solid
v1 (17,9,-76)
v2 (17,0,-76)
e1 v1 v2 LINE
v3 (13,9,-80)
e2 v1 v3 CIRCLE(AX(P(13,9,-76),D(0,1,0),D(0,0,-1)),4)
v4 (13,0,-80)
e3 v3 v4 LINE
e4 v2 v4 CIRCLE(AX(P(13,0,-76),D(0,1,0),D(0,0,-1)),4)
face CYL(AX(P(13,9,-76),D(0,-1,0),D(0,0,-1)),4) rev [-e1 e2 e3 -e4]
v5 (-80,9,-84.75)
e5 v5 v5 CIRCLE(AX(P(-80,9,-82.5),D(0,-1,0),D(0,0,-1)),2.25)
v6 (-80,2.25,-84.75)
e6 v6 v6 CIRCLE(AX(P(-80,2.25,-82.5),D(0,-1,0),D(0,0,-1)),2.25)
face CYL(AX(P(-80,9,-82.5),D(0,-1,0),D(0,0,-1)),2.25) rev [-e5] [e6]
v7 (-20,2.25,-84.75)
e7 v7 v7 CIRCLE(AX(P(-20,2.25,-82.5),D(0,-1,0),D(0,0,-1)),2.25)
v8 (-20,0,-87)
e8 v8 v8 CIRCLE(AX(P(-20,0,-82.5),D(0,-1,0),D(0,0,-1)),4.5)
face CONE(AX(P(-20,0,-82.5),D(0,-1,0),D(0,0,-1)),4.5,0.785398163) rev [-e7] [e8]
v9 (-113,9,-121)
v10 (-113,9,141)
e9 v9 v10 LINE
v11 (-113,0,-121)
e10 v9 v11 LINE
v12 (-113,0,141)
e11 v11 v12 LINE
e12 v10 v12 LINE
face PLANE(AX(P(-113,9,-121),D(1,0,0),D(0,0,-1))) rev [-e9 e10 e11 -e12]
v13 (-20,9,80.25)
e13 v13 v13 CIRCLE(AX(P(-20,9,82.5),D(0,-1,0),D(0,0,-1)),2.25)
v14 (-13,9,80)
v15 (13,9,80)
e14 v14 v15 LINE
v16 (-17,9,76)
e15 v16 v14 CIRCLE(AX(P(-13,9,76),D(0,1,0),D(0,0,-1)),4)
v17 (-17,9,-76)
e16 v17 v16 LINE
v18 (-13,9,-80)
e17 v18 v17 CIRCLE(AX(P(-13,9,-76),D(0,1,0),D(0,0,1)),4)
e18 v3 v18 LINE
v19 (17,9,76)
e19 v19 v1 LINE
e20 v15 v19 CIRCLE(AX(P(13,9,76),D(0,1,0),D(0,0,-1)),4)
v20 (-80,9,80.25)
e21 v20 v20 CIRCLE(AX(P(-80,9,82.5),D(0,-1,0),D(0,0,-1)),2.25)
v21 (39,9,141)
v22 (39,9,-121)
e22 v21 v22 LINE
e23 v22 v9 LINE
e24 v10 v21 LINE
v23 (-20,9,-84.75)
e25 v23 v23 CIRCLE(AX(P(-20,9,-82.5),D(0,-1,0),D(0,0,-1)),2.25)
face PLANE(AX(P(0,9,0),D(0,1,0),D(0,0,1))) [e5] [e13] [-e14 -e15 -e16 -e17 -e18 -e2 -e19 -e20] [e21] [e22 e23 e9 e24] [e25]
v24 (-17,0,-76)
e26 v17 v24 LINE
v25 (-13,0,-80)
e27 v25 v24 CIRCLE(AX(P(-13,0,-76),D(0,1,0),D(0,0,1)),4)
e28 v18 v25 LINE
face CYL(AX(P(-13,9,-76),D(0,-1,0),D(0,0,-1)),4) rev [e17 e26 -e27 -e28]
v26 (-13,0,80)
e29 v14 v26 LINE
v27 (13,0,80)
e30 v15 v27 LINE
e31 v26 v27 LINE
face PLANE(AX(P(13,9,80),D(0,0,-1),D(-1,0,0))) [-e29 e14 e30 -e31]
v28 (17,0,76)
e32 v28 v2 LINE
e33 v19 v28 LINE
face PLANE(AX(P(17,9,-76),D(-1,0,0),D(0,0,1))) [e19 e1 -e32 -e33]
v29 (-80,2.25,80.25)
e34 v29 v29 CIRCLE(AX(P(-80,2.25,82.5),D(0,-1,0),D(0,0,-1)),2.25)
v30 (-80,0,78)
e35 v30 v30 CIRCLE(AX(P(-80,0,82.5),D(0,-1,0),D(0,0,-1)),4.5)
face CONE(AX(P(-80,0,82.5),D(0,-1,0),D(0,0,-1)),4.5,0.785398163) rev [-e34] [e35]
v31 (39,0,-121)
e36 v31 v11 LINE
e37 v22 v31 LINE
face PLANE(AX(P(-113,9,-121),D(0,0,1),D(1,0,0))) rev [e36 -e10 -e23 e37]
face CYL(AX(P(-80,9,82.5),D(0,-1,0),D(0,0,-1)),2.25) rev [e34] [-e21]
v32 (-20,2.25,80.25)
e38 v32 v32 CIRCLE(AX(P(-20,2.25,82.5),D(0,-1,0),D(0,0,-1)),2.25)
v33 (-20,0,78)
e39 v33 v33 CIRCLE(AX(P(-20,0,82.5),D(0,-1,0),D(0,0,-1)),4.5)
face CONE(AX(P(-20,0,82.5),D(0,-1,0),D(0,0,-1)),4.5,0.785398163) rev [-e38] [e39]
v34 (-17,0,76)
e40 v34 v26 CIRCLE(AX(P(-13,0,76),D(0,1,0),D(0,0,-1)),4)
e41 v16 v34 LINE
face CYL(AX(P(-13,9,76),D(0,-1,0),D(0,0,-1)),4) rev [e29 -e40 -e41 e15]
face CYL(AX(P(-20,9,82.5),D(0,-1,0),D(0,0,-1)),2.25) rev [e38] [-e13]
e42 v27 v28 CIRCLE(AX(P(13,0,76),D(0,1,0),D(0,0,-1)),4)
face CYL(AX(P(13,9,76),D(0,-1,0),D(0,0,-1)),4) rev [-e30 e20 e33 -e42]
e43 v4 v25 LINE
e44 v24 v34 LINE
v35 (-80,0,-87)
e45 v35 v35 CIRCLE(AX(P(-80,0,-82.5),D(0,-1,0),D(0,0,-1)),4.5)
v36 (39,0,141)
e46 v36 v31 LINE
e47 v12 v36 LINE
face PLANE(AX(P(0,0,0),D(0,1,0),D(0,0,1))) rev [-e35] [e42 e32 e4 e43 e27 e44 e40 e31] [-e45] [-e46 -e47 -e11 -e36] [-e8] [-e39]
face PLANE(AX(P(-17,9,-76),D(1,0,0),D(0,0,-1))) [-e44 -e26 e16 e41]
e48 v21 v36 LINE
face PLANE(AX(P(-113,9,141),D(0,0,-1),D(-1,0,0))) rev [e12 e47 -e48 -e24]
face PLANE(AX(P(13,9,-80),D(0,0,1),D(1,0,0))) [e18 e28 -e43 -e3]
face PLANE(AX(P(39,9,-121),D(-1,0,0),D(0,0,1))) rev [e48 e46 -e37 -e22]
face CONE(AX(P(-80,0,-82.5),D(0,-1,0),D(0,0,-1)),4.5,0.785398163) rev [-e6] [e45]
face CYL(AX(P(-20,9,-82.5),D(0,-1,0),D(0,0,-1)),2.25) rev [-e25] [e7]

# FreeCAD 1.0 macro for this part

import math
import FreeCAD as App
import Part
import Sketcher
from FreeCAD import Vector
Q = App.Units.Quantity

doc = App.newDocument("Part")
params = doc.addObject("Spreadsheet::Sheet", "Params")
for row, (alias, value) in enumerate([
    ("sketch1_radius", "4 mm"),
    ("sketch1_width", "152 mm"),
    ("sketch1_width2", "26 mm"),
    ("sketch1_height", "262 mm"),
    ("pad1_length", "9 mm"),
    ("sketch2_diameter", "4.5 mm"),
    ("sketch3_width", "4.5 mm"),
    ("groove_angle", "360 deg"),
    ("sketch4_width", "4.5 mm"),
    ("groove2_angle", "360 deg"),
    ("sketch5_width", "4.5 mm"),
    ("groove3_angle", "360 deg"),
    ("sketch6_width", "4.5 mm"),
    ("groove4_angle", "360 deg"),
], start=1):
    params.set(f"A{row}", alias)
    params.set(f"B{row}", "=" + value)
    params.setAlias(f"B{row}", alias)

body = doc.addObject("PartDesign::Body", "Body")

# Sketch on XZ plane
sketch1 = doc.addObject("Sketcher::SketchObject", "Sketch")
body.addObject(sketch1)
sketch1.AttachmentSupport = (doc.XZ_Plane, [""])
sketch1.MapMode = "FlatFace"
sketch1.addGeometry(Part.LineSegment(Vector(-113, -121, 0), Vector(-113, 141, 0)), False)
sketch1.addGeometry(Part.LineSegment(Vector(-113, 141, 0), Vector(39, 141, 0)), False)
sketch1.addGeometry(Part.LineSegment(Vector(39, 141, 0), Vector(39, -121, 0)), False)
sketch1.addGeometry(Part.LineSegment(Vector(39, -121, 0), Vector(-113, -121, 0)), False)
sketch1.addGeometry(Part.LineSegment(Vector(-13, -80, 0), Vector(13, -80, 0)), False)
sketch1.addGeometry(Part.ArcOfCircle(Part.Circle(Vector(13, -76, 0), Vector(0, 0, 1), 4), math.radians(-90), math.radians(0)), False)
sketch1.addGeometry(Part.LineSegment(Vector(17, -76, 0), Vector(17, 76, 0)), False)
sketch1.addGeometry(Part.ArcOfCircle(Part.Circle(Vector(13, 76, 0), Vector(0, 0, 1), 4), math.radians(0), math.radians(90)), False)
sketch1.addGeometry(Part.LineSegment(Vector(13, 80, 0), Vector(-13, 80, 0)), False)
sketch1.addGeometry(Part.ArcOfCircle(Part.Circle(Vector(-13, 76, 0), Vector(0, 0, 1), 4), math.radians(90), math.radians(180)), False)
sketch1.addGeometry(Part.LineSegment(Vector(-17, 76, 0), Vector(-17, -76, 0)), False)
sketch1.addGeometry(Part.ArcOfCircle(Part.Circle(Vector(-13, -76, 0), Vector(0, 0, 1), 4), math.radians(180), math.radians(270)), False)
sketch1.addConstraint(Sketcher.Constraint("Coincident", 0, 2, 1, 1))
sketch1.addConstraint(Sketcher.Constraint("Coincident", 1, 2, 2, 1))
sketch1.addConstraint(Sketcher.Constraint("Coincident", 2, 2, 3, 1))
sketch1.addConstraint(Sketcher.Constraint("Coincident", 3, 2, 0, 1))
sketch1.addConstraint(Sketcher.Constraint("Tangent", 4, 2, 5, 1))
sketch1.addConstraint(Sketcher.Constraint("Tangent", 5, 2, 6, 1))
sketch1.addConstraint(Sketcher.Constraint("Tangent", 6, 2, 7, 1))
sketch1.addConstraint(Sketcher.Constraint("Tangent", 7, 2, 8, 1))
sketch1.addConstraint(Sketcher.Constraint("Tangent", 8, 2, 9, 1))
sketch1.addConstraint(Sketcher.Constraint("Tangent", 9, 2, 10, 1))
sketch1.addConstraint(Sketcher.Constraint("Tangent", 10, 2, 11, 1))
sketch1.addConstraint(Sketcher.Constraint("Tangent", 11, 2, 4, 1))
sketch1.addConstraint(Sketcher.Constraint("Vertical", 0))
sketch1.addConstraint(Sketcher.Constraint("Horizontal", 1))
sketch1.addConstraint(Sketcher.Constraint("Vertical", 2))
sketch1.addConstraint(Sketcher.Constraint("Horizontal", 3))
sketch1.addConstraint(Sketcher.Constraint("Horizontal", 4))
sketch1.addConstraint(Sketcher.Constraint("Vertical", 6))
sketch1.addConstraint(Sketcher.Constraint("Horizontal", 8))
sketch1.addConstraint(Sketcher.Constraint("Vertical", 10))
sketch1.addConstraint(Sketcher.Constraint("Equal", 5, 7))
sketch1.addConstraint(Sketcher.Constraint("Equal", 7, 9))
sketch1.addConstraint(Sketcher.Constraint("Equal", 9, 11))
sketch1.addConstraint(Sketcher.Constraint("Symmetric", 5, 3, 9, 3, -1, 1))
sketch1.addConstraint(Sketcher.Constraint("Equal", 3, 6))
sketch1.addConstraint(Sketcher.Constraint("Radius", 5, Q("4 mm")))
sketch1.addConstraint(Sketcher.Constraint("DistanceX", 1, 1, 1, 2, Q("152 mm")))
sketch1.addConstraint(Sketcher.Constraint("DistanceX", 4, 1, 4, 2, Q("26 mm")))
sketch1.addConstraint(Sketcher.Constraint("DistanceY", 0, 1, 0, 2, Q("262 mm")))
sketch1.addConstraint(Sketcher.Constraint("DistanceX", 0, 2, -1, 1, Q("113 mm")))
sketch1.addConstraint(Sketcher.Constraint("DistanceY", -1, 1, 0, 2, Q("141 mm")))
sketch1.setExpression("Constraints[25]", "Params.sketch1_radius")
sketch1.setExpression("Constraints[26]", "Params.sketch1_width")
sketch1.setExpression("Constraints[27]", "Params.sketch1_width2")
sketch1.setExpression("Constraints[28]", "Params.sketch1_height")
pad1 = doc.addObject("PartDesign::Pad", "Pad")
body.addObject(pad1)
pad1.Profile = sketch1
pad1.setExpression("Length", "Params.pad1_length")
pad1.Reversed = True

# Sketch on XZ plane
sketch2 = doc.addObject("Sketcher::SketchObject", "Sketch001")
body.addObject(sketch2)
sketch2.AttachmentSupport = (doc.XZ_Plane, [""])
sketch2.MapMode = "FlatFace"
sketch2.addGeometry(Part.Circle(Vector(-20, 82.5, 0), Vector(0, 0, 1), 2.2), False)
sketch2.addGeometry(Part.Circle(Vector(-80, 82.5, 0), Vector(0, 0, 1), 2.2), False)
sketch2.addGeometry(Part.Circle(Vector(-20, -82.5, 0), Vector(0, 0, 1), 2.2), False)
sketch2.addGeometry(Part.Circle(Vector(-80, -82.5, 0), Vector(0, 0, 1), 2.2), False)
sketch2.addConstraint(Sketcher.Constraint("Equal", 0, 1))
sketch2.addConstraint(Sketcher.Constraint("Equal", 1, 2))
sketch2.addConstraint(Sketcher.Constraint("Equal", 2, 3))
sketch2.addConstraint(Sketcher.Constraint("Symmetric", 0, 3, 2, 3, -1))
sketch2.addConstraint(Sketcher.Constraint("Symmetric", 1, 3, 3, 3, -1))
sketch2.addConstraint(Sketcher.Constraint("Horizontal", 0, 3, 1, 3))
sketch2.addConstraint(Sketcher.Constraint("Diameter", 0, Q("4.5 mm")))
sketch2.addConstraint(Sketcher.Constraint("DistanceX", 0, 3, -1, 1, Q("20 mm")))
sketch2.addConstraint(Sketcher.Constraint("DistanceX", 1, 3, -1, 1, Q("80 mm")))
sketch2.addConstraint(Sketcher.Constraint("DistanceY", 2, 3, 0, 3, Q("165 mm")))
sketch2.setExpression("Constraints[6]", "Params.sketch2_diameter")
pocket1 = doc.addObject("PartDesign::Pocket", "Pocket")
body.addObject(pocket1)
pocket1.Profile = sketch2
pocket1.Type = "ThroughAll"

# Sketch on YZ plane
sketch3 = doc.addObject("Sketcher::SketchObject", "Sketch002")
body.addObject(sketch3)
sketch3.AttachmentSupport = (doc.YZ_Plane, [""])
sketch3.MapMode = "FlatFace"
sketch3.AttachmentOffset = App.Placement(Vector(0, 0, -80), App.Rotation())
sketch3.addGeometry(Part.LineSegment(Vector(0, 82.5, 0), Vector(0, 78, 0)), False)
sketch3.addGeometry(Part.LineSegment(Vector(0, 78, 0), Vector(4.5, 82.5, 0)), False)
sketch3.addGeometry(Part.LineSegment(Vector(4.5, 82.5, 0), Vector(0, 82.5, 0)), False)
sketch3.addGeometry(Part.LineSegment(Vector(0, 82.5, 0), Vector(4.5, 82.5, 0)), True)  # axis
sketch3.addConstraint(Sketcher.Constraint("Coincident", 0, 2, 1, 1))
sketch3.addConstraint(Sketcher.Constraint("Coincident", 1, 2, 2, 1))
sketch3.addConstraint(Sketcher.Constraint("Coincident", 2, 2, 0, 1))
sketch3.addConstraint(Sketcher.Constraint("Vertical", 0))
sketch3.addConstraint(Sketcher.Constraint("Horizontal", 2))
sketch3.addConstraint(Sketcher.Constraint("Horizontal", 3))
sketch3.addConstraint(Sketcher.Constraint("Coincident", 3, 1, 2, 2))
sketch3.addConstraint(Sketcher.Constraint("PointOnObject", 0, 2, -2))
sketch3.addConstraint(Sketcher.Constraint("Equal", 2, 3))
sketch3.addConstraint(Sketcher.Constraint("Equal", 3, 0))
sketch3.addConstraint(Sketcher.Constraint("DistanceX", 2, 2, 2, 1, Q("4.5 mm")))
sketch3.addConstraint(Sketcher.Constraint("DistanceY", -1, 1, 0, 2, Q("78 mm")))
sketch3.setExpression("Constraints[10]", "Params.sketch3_width")
groove = doc.addObject("PartDesign::Groove", "Groove")
body.addObject(groove)
groove.Profile = sketch3
groove.ReferenceAxis = (sketch3, ["Axis0"])
groove.setExpression("Angle", "Params.groove_angle")

# Sketch on YZ plane
sketch4 = doc.addObject("Sketcher::SketchObject", "Sketch003")
body.addObject(sketch4)
sketch4.AttachmentSupport = (doc.YZ_Plane, [""])
sketch4.MapMode = "FlatFace"
sketch4.AttachmentOffset = App.Placement(Vector(0, 0, -20), App.Rotation())
sketch4.addGeometry(Part.LineSegment(Vector(0, 82.5, 0), Vector(0, 78, 0)), False)
sketch4.addGeometry(Part.LineSegment(Vector(0, 78, 0), Vector(4.5, 82.5, 0)), False)
sketch4.addGeometry(Part.LineSegment(Vector(4.5, 82.5, 0), Vector(0, 82.5, 0)), False)
sketch4.addGeometry(Part.LineSegment(Vector(0, 82.5, 0), Vector(4.5, 82.5, 0)), True)  # axis
sketch4.addConstraint(Sketcher.Constraint("Coincident", 0, 2, 1, 1))
sketch4.addConstraint(Sketcher.Constraint("Coincident", 1, 2, 2, 1))
sketch4.addConstraint(Sketcher.Constraint("Coincident", 2, 2, 0, 1))
sketch4.addConstraint(Sketcher.Constraint("Vertical", 0))
sketch4.addConstraint(Sketcher.Constraint("Horizontal", 2))
sketch4.addConstraint(Sketcher.Constraint("Horizontal", 3))
sketch4.addConstraint(Sketcher.Constraint("Coincident", 3, 1, 2, 2))
sketch4.addConstraint(Sketcher.Constraint("PointOnObject", 0, 2, -2))
sketch4.addConstraint(Sketcher.Constraint("Equal", 2, 3))
sketch4.addConstraint(Sketcher.Constraint("Equal", 3, 0))
sketch4.addConstraint(Sketcher.Constraint("DistanceX", 2, 2, 2, 1, Q("4.5 mm")))
sketch4.addConstraint(Sketcher.Constraint("DistanceY", -1, 1, 0, 2, Q("78 mm")))
sketch4.setExpression("Constraints[10]", "Params.sketch4_width")
groove2 = doc.addObject("PartDesign::Groove", "Groove001")
body.addObject(groove2)
groove2.Profile = sketch4
groove2.ReferenceAxis = (sketch4, ["Axis0"])
groove2.setExpression("Angle", "Params.groove2_angle")

# Sketch on YZ plane
sketch5 = doc.addObject("Sketcher::SketchObject", "Sketch004")
body.addObject(sketch5)
sketch5.AttachmentSupport = (doc.YZ_Plane, [""])
sketch5.MapMode = "FlatFace"
sketch5.AttachmentOffset = App.Placement(Vector(0, 0, -20), App.Rotation())
sketch5.addGeometry(Part.LineSegment(Vector(0, -82.5, 0), Vector(0, -87, 0)), False)
sketch5.addGeometry(Part.LineSegment(Vector(0, -87, 0), Vector(4.5, -82.5, 0)), False)
sketch5.addGeometry(Part.LineSegment(Vector(4.5, -82.5, 0), Vector(0, -82.5, 0)), False)
sketch5.addGeometry(Part.LineSegment(Vector(0, -82.5, 0), Vector(4.5, -82.5, 0)), True)  # axis
sketch5.addConstraint(Sketcher.Constraint("Coincident", 0, 2, 1, 1))
sketch5.addConstraint(Sketcher.Constraint("Coincident", 1, 2, 2, 1))
sketch5.addConstraint(Sketcher.Constraint("Coincident", 2, 2, 0, 1))
sketch5.addConstraint(Sketcher.Constraint("Vertical", 0))
sketch5.addConstraint(Sketcher.Constraint("Horizontal", 2))
sketch5.addConstraint(Sketcher.Constraint("Horizontal", 3))
sketch5.addConstraint(Sketcher.Constraint("Coincident", 3, 1, 2, 2))
sketch5.addConstraint(Sketcher.Constraint("PointOnObject", 0, 2, -2))
sketch5.addConstraint(Sketcher.Constraint("Equal", 2, 3))
sketch5.addConstraint(Sketcher.Constraint("Equal", 3, 0))
sketch5.addConstraint(Sketcher.Constraint("DistanceX", 2, 2, 2, 1, Q("4.5 mm")))
sketch5.addConstraint(Sketcher.Constraint("DistanceY", 0, 2, -1, 1, Q("87 mm")))
sketch5.setExpression("Constraints[10]", "Params.sketch5_width")
groove3 = doc.addObject("PartDesign::Groove", "Groove002")
body.addObject(groove3)
groove3.Profile = sketch5
groove3.ReferenceAxis = (sketch5, ["Axis0"])
groove3.setExpression("Angle", "Params.groove3_angle")

# Sketch on YZ plane
sketch6 = doc.addObject("Sketcher::SketchObject", "Sketch005")
body.addObject(sketch6)
sketch6.AttachmentSupport = (doc.YZ_Plane, [""])
sketch6.MapMode = "FlatFace"
sketch6.AttachmentOffset = App.Placement(Vector(0, 0, -80), App.Rotation())
sketch6.addGeometry(Part.LineSegment(Vector(0, -82.5, 0), Vector(0, -87, 0)), False)
sketch6.addGeometry(Part.LineSegment(Vector(0, -87, 0), Vector(4.5, -82.5, 0)), False)
sketch6.addGeometry(Part.LineSegment(Vector(4.5, -82.5, 0), Vector(0, -82.5, 0)), False)
sketch6.addGeometry(Part.LineSegment(Vector(0, -82.5, 0), Vector(4.5, -82.5, 0)), True)  # axis
sketch6.addConstraint(Sketcher.Constraint("Coincident", 0, 2, 1, 1))
sketch6.addConstraint(Sketcher.Constraint("Coincident", 1, 2, 2, 1))
sketch6.addConstraint(Sketcher.Constraint("Coincident", 2, 2, 0, 1))
sketch6.addConstraint(Sketcher.Constraint("Vertical", 0))
sketch6.addConstraint(Sketcher.Constraint("Horizontal", 2))
sketch6.addConstraint(Sketcher.Constraint("Horizontal", 3))
sketch6.addConstraint(Sketcher.Constraint("Coincident", 3, 1, 2, 2))
sketch6.addConstraint(Sketcher.Constraint("PointOnObject", 0, 2, -2))
sketch6.addConstraint(Sketcher.Constraint("Equal", 2, 3))
sketch6.addConstraint(Sketcher.Constraint("Equal", 3, 0))
sketch6.addConstraint(Sketcher.Constraint("DistanceX", 2, 2, 2, 1, Q("4.5 mm")))
sketch6.addConstraint(Sketcher.Constraint("DistanceY", 0, 2, -1, 1, Q("87 mm")))
sketch6.setExpression("Constraints[10]", "Params.sketch6_width")
groove4 = doc.addObject("PartDesign::Groove", "Groove003")
body.addObject(groove4)
groove4.Profile = sketch6
groove4.ReferenceAxis = (sketch6, ["Axis0"])
groove4.setExpression("Angle", "Params.groove4_angle")

doc.recompute()
